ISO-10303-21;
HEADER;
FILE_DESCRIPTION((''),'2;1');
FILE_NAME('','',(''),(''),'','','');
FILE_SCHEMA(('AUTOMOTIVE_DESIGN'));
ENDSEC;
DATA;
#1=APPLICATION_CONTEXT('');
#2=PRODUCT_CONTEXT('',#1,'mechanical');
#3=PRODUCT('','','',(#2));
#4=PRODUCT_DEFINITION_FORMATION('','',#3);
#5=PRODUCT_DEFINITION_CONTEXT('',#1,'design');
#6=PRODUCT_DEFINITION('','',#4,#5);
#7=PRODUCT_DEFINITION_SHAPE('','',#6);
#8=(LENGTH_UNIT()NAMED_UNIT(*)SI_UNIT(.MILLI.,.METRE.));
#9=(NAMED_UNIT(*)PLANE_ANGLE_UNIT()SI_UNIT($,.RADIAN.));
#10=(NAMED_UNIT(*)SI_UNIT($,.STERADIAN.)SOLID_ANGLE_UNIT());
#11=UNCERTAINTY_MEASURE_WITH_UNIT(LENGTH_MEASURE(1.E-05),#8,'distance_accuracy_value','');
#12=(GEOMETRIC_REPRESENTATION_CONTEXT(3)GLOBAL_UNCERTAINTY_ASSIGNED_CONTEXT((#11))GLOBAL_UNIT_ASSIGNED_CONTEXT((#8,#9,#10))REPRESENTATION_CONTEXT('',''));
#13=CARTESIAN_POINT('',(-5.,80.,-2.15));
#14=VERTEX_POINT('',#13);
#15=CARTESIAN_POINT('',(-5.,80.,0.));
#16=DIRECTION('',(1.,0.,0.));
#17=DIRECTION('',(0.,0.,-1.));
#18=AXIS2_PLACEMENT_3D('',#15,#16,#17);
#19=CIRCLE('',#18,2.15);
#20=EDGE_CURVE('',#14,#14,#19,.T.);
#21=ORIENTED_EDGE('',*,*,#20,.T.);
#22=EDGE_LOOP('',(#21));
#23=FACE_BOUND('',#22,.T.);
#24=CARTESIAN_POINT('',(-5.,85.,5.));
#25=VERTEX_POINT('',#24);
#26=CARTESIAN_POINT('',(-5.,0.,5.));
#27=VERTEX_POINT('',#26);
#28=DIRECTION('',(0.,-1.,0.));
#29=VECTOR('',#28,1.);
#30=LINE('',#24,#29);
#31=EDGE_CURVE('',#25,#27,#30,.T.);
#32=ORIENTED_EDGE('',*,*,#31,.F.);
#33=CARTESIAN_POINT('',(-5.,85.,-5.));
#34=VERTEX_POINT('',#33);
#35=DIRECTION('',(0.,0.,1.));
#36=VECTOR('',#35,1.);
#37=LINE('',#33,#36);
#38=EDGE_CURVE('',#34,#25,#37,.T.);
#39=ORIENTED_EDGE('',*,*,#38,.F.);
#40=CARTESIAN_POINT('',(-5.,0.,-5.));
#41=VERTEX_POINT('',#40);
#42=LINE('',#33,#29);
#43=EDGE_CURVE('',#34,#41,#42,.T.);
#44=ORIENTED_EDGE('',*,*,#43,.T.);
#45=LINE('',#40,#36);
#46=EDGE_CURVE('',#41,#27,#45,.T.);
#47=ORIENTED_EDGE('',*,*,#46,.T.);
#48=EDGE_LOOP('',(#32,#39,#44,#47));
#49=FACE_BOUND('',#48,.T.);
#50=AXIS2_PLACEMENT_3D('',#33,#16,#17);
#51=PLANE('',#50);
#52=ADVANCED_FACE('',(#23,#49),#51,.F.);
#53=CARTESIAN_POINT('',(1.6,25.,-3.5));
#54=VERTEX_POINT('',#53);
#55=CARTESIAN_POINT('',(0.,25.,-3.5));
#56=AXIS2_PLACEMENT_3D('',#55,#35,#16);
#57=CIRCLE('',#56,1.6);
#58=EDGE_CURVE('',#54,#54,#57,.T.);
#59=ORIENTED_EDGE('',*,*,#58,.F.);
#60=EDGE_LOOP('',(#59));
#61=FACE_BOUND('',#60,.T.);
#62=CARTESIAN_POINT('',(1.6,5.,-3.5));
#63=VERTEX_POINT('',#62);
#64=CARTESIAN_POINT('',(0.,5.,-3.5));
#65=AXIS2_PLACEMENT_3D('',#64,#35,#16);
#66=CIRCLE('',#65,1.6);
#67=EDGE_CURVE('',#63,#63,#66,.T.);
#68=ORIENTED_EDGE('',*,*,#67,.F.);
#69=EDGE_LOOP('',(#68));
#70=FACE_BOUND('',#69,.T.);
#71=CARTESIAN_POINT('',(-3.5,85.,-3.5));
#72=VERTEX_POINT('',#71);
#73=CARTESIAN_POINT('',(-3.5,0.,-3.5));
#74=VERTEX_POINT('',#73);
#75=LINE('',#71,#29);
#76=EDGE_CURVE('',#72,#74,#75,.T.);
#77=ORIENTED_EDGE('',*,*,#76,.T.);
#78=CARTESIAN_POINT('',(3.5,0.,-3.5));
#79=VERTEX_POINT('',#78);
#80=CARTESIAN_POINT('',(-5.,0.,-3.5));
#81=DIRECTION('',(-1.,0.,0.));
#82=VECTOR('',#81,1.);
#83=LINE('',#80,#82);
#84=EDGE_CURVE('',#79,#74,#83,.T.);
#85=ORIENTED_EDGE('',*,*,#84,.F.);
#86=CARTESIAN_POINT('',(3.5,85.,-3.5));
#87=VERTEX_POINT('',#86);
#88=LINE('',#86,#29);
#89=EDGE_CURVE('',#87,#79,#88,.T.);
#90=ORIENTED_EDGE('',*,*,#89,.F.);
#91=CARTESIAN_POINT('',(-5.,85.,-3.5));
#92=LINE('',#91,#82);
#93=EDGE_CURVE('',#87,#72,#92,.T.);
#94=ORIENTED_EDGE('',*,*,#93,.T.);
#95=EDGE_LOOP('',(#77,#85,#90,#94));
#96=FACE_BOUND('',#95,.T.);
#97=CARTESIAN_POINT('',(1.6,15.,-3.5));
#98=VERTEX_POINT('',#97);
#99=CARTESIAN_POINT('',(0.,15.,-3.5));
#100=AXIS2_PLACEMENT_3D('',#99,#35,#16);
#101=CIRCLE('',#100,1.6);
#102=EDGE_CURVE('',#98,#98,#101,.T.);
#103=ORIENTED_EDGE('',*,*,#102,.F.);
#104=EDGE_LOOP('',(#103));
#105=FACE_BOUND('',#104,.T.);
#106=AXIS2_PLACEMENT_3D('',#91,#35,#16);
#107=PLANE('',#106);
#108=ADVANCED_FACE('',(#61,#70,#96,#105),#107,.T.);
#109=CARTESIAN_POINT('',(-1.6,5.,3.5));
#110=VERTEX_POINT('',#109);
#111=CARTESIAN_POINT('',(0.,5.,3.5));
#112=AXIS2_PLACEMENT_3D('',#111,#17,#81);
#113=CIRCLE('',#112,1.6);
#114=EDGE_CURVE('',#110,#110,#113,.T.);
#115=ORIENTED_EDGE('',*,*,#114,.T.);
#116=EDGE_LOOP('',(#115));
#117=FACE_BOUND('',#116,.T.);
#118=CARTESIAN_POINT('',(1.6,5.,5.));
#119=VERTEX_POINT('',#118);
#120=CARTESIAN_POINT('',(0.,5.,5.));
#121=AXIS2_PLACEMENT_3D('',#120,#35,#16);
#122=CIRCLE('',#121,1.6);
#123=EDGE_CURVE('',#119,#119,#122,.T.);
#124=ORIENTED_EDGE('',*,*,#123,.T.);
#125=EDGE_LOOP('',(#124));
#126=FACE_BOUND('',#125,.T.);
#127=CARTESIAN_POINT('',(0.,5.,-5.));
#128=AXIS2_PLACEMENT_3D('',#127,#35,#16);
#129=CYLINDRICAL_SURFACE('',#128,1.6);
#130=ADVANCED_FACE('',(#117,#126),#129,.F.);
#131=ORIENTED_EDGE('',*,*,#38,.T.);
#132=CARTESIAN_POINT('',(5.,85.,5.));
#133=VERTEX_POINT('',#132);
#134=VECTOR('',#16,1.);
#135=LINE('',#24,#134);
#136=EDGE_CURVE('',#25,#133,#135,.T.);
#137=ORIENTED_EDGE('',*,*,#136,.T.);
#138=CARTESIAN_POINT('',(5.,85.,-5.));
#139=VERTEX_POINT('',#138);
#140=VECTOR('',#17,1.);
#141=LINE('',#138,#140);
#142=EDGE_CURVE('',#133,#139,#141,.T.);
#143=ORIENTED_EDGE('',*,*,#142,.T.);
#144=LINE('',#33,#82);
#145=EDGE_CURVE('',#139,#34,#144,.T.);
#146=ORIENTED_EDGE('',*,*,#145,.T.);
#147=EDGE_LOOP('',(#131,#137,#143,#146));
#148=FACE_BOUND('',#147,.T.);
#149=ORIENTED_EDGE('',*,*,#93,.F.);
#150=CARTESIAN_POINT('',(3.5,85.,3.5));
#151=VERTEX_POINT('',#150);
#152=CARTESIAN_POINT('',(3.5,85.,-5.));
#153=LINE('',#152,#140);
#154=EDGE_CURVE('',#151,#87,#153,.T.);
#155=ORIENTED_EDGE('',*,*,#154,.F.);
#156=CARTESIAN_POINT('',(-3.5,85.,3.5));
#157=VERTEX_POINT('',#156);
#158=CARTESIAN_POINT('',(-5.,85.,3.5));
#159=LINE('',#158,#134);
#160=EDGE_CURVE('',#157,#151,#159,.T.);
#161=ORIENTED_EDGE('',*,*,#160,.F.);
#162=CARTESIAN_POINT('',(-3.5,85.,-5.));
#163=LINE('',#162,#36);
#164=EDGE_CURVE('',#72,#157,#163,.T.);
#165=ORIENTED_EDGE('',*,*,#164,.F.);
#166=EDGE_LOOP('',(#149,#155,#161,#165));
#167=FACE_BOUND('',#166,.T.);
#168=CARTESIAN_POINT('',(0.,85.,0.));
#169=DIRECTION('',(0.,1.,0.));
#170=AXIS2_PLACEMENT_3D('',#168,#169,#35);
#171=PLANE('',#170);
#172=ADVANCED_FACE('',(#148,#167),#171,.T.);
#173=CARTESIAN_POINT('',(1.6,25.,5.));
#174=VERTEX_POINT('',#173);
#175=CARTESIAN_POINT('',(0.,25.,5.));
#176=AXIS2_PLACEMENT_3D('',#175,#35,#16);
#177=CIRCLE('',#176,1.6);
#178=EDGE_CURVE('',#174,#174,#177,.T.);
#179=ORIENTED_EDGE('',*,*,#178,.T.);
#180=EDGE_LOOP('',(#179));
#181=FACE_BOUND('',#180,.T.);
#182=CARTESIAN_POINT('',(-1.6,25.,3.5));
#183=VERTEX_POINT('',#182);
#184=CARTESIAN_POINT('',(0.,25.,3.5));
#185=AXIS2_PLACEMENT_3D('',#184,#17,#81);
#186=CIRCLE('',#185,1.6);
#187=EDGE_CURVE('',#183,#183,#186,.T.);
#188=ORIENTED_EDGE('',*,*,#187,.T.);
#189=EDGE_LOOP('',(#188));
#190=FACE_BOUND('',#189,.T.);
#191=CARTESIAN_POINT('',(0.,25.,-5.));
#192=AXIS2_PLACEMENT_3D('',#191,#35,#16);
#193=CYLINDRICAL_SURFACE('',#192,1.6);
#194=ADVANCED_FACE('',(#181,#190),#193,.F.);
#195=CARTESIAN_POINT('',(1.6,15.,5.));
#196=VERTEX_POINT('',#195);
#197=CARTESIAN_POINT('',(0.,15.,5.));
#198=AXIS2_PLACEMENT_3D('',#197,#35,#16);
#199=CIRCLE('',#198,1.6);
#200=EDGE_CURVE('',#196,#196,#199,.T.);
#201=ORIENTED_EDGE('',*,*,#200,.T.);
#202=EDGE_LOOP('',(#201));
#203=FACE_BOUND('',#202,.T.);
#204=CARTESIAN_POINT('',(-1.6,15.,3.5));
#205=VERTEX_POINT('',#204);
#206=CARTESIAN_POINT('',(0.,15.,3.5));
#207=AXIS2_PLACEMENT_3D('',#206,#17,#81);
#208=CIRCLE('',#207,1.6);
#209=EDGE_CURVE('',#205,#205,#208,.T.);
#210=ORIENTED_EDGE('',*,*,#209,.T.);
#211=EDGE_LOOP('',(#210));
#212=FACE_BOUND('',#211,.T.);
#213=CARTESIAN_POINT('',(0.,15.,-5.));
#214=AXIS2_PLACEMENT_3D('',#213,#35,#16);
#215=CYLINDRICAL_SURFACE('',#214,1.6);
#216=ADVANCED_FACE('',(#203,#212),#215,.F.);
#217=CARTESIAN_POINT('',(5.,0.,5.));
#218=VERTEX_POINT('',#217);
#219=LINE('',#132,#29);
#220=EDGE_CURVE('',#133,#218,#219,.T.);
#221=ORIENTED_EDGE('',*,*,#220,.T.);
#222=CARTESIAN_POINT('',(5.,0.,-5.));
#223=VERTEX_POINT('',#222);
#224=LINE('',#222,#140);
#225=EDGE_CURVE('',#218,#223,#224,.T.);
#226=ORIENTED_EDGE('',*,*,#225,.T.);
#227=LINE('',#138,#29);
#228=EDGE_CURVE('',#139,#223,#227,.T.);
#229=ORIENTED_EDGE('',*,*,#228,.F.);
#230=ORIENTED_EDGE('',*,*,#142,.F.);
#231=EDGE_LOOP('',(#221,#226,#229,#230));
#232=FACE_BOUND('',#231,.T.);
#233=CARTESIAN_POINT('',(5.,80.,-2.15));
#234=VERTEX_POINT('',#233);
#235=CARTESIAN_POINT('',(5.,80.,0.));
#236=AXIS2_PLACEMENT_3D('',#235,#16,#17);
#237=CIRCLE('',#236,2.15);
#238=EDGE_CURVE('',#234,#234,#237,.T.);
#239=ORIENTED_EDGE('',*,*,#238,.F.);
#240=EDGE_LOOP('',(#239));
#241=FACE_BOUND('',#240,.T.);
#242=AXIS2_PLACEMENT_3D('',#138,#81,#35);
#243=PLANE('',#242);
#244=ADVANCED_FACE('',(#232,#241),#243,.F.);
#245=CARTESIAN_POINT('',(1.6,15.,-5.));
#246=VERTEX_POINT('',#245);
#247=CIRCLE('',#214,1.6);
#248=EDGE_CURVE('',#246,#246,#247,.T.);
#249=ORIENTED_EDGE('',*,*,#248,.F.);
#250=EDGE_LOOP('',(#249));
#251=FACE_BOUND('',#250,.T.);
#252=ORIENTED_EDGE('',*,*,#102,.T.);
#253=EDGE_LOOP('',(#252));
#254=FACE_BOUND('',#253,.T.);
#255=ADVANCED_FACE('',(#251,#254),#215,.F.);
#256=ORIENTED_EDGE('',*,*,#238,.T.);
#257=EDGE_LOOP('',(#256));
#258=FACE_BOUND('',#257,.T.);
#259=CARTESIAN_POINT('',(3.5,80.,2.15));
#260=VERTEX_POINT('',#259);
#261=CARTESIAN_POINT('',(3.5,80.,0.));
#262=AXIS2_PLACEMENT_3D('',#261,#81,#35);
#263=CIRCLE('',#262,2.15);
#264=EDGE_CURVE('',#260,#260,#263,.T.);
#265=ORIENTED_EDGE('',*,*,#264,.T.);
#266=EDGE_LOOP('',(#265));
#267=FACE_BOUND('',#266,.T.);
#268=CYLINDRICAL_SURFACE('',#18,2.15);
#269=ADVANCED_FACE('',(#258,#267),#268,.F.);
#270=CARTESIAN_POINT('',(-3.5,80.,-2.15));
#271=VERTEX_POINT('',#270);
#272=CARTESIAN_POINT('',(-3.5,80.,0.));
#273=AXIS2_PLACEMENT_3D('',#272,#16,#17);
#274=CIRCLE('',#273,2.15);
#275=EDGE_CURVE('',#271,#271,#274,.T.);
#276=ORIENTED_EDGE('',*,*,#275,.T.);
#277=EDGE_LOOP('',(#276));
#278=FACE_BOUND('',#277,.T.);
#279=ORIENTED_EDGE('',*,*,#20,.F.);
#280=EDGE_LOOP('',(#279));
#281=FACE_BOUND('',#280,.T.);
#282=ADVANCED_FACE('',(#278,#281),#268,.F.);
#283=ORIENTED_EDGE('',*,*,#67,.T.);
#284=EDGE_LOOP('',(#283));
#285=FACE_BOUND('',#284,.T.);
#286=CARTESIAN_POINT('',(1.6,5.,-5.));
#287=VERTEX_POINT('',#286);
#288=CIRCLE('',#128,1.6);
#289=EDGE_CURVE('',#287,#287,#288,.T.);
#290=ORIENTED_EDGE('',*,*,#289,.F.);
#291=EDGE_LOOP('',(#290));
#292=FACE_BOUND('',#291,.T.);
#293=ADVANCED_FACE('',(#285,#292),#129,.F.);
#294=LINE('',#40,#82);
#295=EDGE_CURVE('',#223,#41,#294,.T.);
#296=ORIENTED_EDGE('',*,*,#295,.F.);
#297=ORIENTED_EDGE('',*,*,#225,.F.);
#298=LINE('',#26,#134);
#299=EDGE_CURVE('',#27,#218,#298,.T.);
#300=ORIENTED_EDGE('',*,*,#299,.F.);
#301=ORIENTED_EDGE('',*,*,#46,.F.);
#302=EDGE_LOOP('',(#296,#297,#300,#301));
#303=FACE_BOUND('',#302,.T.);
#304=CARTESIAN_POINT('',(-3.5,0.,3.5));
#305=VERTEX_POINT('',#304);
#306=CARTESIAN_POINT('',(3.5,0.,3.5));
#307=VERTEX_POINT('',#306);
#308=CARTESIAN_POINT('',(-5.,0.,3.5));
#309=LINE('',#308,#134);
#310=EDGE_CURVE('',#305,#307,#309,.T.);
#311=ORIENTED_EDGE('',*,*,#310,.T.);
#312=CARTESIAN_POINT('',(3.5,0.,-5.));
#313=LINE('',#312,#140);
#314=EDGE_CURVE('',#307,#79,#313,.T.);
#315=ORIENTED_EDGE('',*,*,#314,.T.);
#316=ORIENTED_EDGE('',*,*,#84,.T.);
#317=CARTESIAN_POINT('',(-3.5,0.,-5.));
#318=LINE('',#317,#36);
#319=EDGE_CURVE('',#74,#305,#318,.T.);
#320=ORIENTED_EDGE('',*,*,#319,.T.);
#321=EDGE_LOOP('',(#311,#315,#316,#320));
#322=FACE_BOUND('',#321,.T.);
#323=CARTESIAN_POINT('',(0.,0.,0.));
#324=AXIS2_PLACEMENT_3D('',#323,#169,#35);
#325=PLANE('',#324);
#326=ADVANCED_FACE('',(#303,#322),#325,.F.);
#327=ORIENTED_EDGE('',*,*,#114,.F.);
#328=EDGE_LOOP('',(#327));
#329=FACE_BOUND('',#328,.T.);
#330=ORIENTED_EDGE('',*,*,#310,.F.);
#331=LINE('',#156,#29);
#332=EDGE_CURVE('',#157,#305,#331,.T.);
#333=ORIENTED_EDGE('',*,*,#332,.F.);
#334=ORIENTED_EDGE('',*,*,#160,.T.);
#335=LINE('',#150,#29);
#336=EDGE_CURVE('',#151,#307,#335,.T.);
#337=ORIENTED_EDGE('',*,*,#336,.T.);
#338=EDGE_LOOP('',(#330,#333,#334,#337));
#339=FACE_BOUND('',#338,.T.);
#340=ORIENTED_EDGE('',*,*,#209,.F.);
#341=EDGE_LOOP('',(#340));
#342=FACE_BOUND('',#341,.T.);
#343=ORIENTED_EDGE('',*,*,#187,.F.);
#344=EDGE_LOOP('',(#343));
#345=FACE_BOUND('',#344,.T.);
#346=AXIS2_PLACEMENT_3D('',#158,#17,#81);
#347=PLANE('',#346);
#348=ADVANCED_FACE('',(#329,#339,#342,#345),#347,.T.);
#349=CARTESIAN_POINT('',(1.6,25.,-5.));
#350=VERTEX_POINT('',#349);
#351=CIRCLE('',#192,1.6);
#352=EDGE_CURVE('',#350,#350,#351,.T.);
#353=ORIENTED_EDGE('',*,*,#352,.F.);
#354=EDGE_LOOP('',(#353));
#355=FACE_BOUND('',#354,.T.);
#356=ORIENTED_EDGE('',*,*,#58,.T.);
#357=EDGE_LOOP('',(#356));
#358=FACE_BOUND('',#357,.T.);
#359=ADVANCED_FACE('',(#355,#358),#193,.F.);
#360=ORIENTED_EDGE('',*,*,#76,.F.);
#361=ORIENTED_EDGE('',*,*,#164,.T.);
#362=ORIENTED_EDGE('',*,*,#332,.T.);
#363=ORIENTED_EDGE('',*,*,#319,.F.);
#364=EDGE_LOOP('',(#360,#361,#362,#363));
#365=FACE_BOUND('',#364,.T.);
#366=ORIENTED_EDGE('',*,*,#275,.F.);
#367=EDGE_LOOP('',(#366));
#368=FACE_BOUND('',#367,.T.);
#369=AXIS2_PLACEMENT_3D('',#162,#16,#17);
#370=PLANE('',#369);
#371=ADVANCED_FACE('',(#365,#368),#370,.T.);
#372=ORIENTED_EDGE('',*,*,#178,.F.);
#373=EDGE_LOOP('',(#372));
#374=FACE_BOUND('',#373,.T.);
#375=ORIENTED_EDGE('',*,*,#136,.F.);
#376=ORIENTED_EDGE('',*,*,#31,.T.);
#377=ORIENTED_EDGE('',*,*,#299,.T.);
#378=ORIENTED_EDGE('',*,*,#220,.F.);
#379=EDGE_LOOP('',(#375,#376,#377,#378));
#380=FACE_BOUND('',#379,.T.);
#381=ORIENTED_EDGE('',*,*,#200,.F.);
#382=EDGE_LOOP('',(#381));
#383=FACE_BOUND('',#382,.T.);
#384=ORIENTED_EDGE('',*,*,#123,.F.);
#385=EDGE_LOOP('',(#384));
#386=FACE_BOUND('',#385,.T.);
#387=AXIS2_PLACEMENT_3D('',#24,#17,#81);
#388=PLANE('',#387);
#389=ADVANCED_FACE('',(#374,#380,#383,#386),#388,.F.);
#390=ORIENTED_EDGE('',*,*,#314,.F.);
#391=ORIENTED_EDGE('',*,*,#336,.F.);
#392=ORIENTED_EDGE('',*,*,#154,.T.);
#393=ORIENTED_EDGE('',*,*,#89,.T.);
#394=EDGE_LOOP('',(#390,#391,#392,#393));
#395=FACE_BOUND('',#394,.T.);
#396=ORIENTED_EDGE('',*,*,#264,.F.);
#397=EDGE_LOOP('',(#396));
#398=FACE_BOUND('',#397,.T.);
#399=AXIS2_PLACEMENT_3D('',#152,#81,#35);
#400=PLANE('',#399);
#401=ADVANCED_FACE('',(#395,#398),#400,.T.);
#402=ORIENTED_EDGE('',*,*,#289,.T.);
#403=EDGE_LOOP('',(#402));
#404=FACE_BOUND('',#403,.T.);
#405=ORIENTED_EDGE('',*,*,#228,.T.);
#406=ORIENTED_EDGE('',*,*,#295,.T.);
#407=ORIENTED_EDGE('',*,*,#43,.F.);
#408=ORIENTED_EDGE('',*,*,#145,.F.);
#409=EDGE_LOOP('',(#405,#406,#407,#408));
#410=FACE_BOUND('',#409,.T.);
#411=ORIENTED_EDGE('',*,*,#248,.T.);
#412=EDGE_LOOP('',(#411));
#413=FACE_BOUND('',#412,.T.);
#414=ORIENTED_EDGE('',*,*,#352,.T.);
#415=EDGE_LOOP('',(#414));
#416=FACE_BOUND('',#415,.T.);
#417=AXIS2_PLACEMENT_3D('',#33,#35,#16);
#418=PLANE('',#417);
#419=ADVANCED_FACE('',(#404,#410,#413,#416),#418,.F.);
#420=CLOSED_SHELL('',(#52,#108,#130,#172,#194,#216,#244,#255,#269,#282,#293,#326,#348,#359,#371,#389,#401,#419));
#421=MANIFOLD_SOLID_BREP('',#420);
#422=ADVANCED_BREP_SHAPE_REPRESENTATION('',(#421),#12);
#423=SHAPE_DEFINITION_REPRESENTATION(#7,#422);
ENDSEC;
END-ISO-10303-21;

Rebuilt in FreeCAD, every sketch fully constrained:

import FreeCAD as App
import Part
import Sketcher

V = App.Vector
Q = App.Units.Quantity


def add_polygon(sketch, points):
    """Adds a closed chain of lines whose ends are joined by coincident constraints."""
    first, n = sketch.GeometryCount, len(points)
    for a, b in zip(points, points[1:] + points[:1]):
        sketch.addGeometry(Part.LineSegment(App.Vector(*a, 0), App.Vector(*b, 0)), False)
    for i in range(n):
        sketch.addConstraint(Sketcher.Constraint("Coincident", first + i, 2, first + (i + 1) % n, 1))

doc = App.newDocument("Part")
body = doc.addObject("PartDesign::Body", "Body")

# Sketch on XZ plane
sketch1 = doc.addObject("Sketcher::SketchObject", "Sketch")
body.addObject(sketch1)
sketch1.AttachmentSupport = (doc.XZ_Plane, [""])
sketch1.MapMode = "FlatFace"
add_polygon(sketch1, [(-5, -5), (-5, 5), (5, 5), (5, -5)])  # lines 0-3
add_polygon(sketch1, [(4, 4), (-4, 4), (-4, -4), (4, -4)])  # lines 4-7
sketch1.addConstraint(Sketcher.Constraint("Vertical", 0))
sketch1.addConstraint(Sketcher.Constraint("Horizontal", 1))
sketch1.addConstraint(Sketcher.Constraint("Vertical", 2))
sketch1.addConstraint(Sketcher.Constraint("Horizontal", 3))
sketch1.addConstraint(Sketcher.Constraint("Horizontal", 4))
sketch1.addConstraint(Sketcher.Constraint("Vertical", 5))
sketch1.addConstraint(Sketcher.Constraint("Horizontal", 6))
sketch1.addConstraint(Sketcher.Constraint("Vertical", 7))
sketch1.addConstraint(Sketcher.Constraint("Symmetric", 0, 2, 2, 2, -1, 1))
sketch1.addConstraint(Sketcher.Constraint("Symmetric", 4, 2, 6, 2, -1, 1))
sketch1.addConstraint(Sketcher.Constraint("Equal", 3, 0))
sketch1.addConstraint(Sketcher.Constraint("Equal", 6, 5))
sketch1.addConstraint(Sketcher.Constraint("DistanceX", 1, 1, 1, 2, Q("10 mm")))
sketch1.addConstraint(Sketcher.Constraint("DistanceX", 4, 2, 4, 1, Q("7 mm")))
pad1 = doc.addObject("PartDesign::Pad", "Pad")
body.addObject(pad1)
pad1.Profile = sketch1
pad1.Length = 85
pad1.Reversed = True

# Sketch on XY plane
sketch2 = doc.addObject("Sketcher::SketchObject", "Sketch001")
body.addObject(sketch2)
sketch2.AttachmentSupport = (doc.XY_Plane, [""])
sketch2.MapMode = "FlatFace"
sketch2.AttachmentOffset = App.Placement(V(0, 0, 5), App.Rotation())
sketch2.addGeometry(Part.Circle(V(0, 25, 0), V(0, 0, 1), 1.6), False)
sketch2.addGeometry(Part.Circle(V(0, 5, 0), V(0, 0, 1), 1.6), False)
sketch2.addGeometry(Part.Circle(V(0, 15, 0), V(0, 0, 1), 1.6), False)
sketch2.addConstraint(Sketcher.Constraint("Equal", 0, 1))
sketch2.addConstraint(Sketcher.Constraint("Equal", 1, 2))
sketch2.addConstraint(Sketcher.Constraint("PointOnObject", 0, 3, -2))
sketch2.addConstraint(Sketcher.Constraint("PointOnObject", 1, 3, -2))
sketch2.addConstraint(Sketcher.Constraint("PointOnObject", 2, 3, -2))
sketch2.addConstraint(Sketcher.Constraint("Diameter", 0, Q("3.2 mm")))
sketch2.addConstraint(Sketcher.Constraint("DistanceY", -1, 1, 0, 3, Q("25 mm")))
sketch2.addConstraint(Sketcher.Constraint("DistanceY", -1, 1, 1, 3, Q("5 mm")))
sketch2.addConstraint(Sketcher.Constraint("DistanceY", -1, 1, 2, 3, Q("15 mm")))
pocket1 = doc.addObject("PartDesign::Pocket", "Pocket")
body.addObject(pocket1)
pocket1.Profile = sketch2
pocket1.Type = "ThroughAll"

# Sketch on YZ plane
sketch3 = doc.addObject("Sketcher::SketchObject", "Sketch002")
body.addObject(sketch3)
sketch3.AttachmentSupport = (doc.YZ_Plane, [""])
sketch3.MapMode = "FlatFace"
sketch3.AttachmentOffset = App.Placement(V(0, 0, 5), App.Rotation())
sketch3.addGeometry(Part.Circle(V(80, 0, 0), V(0, 0, 1), 2.1), False)
sketch3.addConstraint(Sketcher.Constraint("PointOnObject", 0, 3, -1))
sketch3.addConstraint(Sketcher.Constraint("Diameter", 0, Q("4.3 mm")))
sketch3.addConstraint(Sketcher.Constraint("DistanceX", -1, 1, 0, 3, Q("80 mm")))
pocket2 = doc.addObject("PartDesign::Pocket", "Pocket001")
body.addObject(pocket2)
pocket2.Profile = sketch3
pocket2.Type = "ThroughAll"

doc.recompute()
